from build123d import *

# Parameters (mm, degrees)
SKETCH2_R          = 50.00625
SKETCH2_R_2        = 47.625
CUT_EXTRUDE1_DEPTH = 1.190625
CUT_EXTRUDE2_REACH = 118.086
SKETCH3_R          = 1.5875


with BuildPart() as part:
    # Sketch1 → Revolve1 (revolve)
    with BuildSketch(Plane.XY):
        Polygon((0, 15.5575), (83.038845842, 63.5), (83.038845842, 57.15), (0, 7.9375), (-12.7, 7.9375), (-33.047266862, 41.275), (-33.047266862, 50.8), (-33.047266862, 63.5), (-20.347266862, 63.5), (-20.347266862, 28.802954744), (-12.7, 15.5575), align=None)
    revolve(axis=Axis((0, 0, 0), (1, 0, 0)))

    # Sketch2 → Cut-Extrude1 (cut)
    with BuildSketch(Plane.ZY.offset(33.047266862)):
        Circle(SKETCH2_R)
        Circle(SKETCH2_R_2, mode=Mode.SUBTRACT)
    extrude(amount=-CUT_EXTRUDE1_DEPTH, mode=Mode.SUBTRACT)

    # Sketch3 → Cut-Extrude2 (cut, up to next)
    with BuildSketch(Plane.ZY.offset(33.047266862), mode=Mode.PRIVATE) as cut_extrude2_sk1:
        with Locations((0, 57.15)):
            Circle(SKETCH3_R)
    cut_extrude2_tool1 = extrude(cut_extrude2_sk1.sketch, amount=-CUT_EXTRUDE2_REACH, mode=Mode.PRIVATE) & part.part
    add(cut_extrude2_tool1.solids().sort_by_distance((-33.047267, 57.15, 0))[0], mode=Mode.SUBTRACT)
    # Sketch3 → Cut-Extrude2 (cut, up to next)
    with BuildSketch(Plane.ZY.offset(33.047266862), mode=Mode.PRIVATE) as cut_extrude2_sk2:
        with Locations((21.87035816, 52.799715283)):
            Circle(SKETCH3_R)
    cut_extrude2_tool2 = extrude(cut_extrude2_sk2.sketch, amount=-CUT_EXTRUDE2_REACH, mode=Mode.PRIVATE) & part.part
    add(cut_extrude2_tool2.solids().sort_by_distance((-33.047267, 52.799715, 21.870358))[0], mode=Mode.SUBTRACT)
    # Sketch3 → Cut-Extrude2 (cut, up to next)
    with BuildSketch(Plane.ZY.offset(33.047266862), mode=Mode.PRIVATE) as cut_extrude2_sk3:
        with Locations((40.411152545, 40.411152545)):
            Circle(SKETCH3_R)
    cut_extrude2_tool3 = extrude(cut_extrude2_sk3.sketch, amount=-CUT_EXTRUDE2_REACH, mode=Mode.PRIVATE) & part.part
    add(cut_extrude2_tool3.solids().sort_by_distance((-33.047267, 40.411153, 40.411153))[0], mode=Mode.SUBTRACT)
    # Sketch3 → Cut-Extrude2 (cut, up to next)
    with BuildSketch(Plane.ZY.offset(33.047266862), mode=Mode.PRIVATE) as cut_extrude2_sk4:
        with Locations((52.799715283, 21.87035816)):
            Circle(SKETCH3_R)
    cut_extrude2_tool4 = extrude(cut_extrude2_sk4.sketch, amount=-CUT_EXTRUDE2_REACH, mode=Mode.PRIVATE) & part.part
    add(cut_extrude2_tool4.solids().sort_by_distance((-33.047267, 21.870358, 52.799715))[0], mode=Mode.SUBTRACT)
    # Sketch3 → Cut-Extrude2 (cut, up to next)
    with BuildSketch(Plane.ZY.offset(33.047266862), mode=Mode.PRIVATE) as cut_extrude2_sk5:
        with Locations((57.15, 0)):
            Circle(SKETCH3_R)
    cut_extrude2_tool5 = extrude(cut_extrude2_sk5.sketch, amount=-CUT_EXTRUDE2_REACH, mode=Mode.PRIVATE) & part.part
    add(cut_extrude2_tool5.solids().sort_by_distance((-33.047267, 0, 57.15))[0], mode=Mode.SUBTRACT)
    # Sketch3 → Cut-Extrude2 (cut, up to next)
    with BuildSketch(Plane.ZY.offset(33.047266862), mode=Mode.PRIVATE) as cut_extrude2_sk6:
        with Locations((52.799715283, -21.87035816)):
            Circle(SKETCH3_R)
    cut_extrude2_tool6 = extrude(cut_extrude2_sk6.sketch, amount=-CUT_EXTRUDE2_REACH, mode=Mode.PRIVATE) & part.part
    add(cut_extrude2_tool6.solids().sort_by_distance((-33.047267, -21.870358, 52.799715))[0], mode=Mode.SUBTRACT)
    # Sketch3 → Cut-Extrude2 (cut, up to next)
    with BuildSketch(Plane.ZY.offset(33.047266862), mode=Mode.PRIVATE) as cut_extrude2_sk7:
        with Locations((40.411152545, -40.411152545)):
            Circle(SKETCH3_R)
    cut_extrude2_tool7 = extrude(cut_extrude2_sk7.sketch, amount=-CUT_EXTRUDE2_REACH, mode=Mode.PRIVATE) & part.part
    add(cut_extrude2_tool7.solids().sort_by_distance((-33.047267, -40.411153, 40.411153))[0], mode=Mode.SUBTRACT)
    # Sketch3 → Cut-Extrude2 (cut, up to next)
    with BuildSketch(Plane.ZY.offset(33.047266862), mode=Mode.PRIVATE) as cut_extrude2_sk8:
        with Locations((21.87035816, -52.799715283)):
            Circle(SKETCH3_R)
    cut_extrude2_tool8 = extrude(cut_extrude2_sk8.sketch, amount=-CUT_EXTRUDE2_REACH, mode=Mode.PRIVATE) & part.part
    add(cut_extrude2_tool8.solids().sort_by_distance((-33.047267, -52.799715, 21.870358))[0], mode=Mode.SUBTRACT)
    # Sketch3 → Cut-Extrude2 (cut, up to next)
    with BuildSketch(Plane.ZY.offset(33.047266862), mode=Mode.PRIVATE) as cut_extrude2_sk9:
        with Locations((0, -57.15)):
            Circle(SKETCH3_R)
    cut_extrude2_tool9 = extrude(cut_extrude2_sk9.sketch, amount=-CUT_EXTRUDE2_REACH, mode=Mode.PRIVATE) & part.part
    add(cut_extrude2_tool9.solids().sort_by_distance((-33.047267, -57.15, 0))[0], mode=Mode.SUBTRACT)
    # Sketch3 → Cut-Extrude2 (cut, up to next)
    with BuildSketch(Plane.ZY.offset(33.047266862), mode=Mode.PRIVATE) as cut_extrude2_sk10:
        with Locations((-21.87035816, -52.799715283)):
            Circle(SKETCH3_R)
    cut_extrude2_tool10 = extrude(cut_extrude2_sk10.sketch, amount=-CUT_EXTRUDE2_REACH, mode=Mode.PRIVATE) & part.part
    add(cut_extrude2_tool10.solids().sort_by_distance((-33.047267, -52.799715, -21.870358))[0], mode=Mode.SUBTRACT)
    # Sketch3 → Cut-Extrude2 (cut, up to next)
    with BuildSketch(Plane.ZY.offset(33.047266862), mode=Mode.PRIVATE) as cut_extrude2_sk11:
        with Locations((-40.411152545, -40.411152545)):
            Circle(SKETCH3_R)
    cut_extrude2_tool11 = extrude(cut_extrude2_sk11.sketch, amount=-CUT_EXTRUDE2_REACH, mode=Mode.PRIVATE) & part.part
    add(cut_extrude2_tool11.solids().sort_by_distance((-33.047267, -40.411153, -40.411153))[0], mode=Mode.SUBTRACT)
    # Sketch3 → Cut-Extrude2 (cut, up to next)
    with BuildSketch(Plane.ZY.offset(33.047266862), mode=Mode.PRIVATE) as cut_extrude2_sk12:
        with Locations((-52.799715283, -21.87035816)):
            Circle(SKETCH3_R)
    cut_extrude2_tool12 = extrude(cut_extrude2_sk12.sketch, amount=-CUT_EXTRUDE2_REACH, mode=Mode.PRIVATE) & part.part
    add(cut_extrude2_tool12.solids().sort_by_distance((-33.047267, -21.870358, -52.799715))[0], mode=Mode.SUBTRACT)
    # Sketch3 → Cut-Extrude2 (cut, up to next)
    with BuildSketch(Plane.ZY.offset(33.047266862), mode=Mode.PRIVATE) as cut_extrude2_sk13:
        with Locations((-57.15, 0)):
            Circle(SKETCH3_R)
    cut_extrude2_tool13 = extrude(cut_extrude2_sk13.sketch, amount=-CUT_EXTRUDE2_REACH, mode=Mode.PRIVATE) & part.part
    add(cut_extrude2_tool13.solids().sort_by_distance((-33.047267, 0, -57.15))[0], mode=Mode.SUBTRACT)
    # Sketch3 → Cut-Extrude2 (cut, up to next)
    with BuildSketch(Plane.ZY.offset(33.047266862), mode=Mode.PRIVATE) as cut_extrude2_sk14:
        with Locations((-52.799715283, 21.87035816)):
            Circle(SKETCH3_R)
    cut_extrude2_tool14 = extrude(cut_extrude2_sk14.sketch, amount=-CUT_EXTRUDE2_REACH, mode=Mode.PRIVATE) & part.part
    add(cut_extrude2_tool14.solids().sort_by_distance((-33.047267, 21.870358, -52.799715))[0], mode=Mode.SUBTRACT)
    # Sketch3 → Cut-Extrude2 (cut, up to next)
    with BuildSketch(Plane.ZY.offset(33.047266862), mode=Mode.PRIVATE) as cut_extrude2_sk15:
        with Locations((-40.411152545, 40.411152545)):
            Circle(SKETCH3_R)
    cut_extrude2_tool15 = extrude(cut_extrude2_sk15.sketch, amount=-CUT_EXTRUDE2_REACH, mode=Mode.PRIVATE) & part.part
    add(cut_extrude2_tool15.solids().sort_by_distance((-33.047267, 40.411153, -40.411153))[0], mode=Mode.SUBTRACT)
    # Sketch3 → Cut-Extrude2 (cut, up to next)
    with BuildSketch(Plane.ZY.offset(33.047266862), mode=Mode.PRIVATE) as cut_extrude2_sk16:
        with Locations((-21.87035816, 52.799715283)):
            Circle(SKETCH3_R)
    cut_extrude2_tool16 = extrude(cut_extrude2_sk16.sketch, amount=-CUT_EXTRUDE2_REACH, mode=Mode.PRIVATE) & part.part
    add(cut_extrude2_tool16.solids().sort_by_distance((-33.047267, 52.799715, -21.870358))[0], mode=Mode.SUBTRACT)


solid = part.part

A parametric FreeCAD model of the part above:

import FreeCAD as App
import Part
import Sketcher

V = App.Vector
Q = App.Units.Quantity

doc = App.newDocument("Part")
params = doc.addObject("Spreadsheet::Sheet", "Params")
for row, (alias, value) in enumerate([
    ("sketch1_width", "0.5 in"),
    ("sketch1_height", "0.25 in"),
    ("sketch1_height2", "0.875 in"),
    ("sketch1_length", "3.775 in"),
    ("revolution_angle", "360 deg"),
    ("sketch2_diameter", "3.75 in"),
    ("sketch2_diameter2", "3.9375 in"),
    ("pocket1_length", "0.046875 in"),
    ("sketch3_diameter", "0.125 in"),
    ("sketch4_diameter", "0.125 in"),
    ("sketch5_diameter", "0.125 in"),
    ("sketch6_diameter", "0.125 in"),
    ("sketch7_diameter", "0.125 in"),
    ("sketch8_diameter", "0.125 in"),
    ("sketch9_diameter", "0.125 in"),
    ("sketch10_diameter", "0.125 in"),
    ("sketch11_diameter", "0.125 in"),
    ("sketch12_diameter", "0.125 in"),
    ("sketch13_diameter", "0.125 in"),
    ("sketch14_diameter", "0.125 in"),
    ("sketch15_diameter", "0.125 in"),
    ("sketch16_diameter", "0.125 in"),
    ("sketch17_diameter", "0.125 in"),
    ("sketch18_diameter", "0.125 in"),
], start=1):
    params.set(f"A{row}", alias)
    params.set(f"B{row}", "=" + value)
    params.setAlias(f"B{row}", alias)

body = doc.addObject("PartDesign::Body", "Body")

sketch1 = body.newObject("Sketcher::SketchObject", "Sketch")
sketch1.AttachmentSupport = (doc.getObject("XY_Plane"), [""])
sketch1.MapMode = "FlatFace"
sketch1.addGeometry(Part.LineSegment(V(83, 64, 0), V(0, 16, 0)), False)
sketch1.addGeometry(Part.LineSegment(V(0, 16, 0), V(-13, 16, 0)), False)
sketch1.addGeometry(Part.LineSegment(V(-13, 16, 0), V(-20, 29, 0)), False)
sketch1.addGeometry(Part.LineSegment(V(-20, 29, 0), V(-20, 64, 0)), False)
sketch1.addGeometry(Part.LineSegment(V(-20, 64, 0), V(-33, 64, 0)), False)
sketch1.addGeometry(Part.LineSegment(V(-33, 64, 0), V(-33, 41, 0)), False)
sketch1.addGeometry(Part.LineSegment(V(-33, 41, 0), V(-13, 8, 0)), False)
sketch1.addGeometry(Part.LineSegment(V(-13, 8, 0), V(0, 8, 0)), False)
sketch1.addGeometry(Part.LineSegment(V(0, 8, 0), V(83, 57, 0)), False)
sketch1.addGeometry(Part.LineSegment(V(83, 57, 0), V(83, 64, 0)), False)
sketch1.addConstraint(Sketcher.Constraint("Coincident", 0, 2, 1, 1))
sketch1.addConstraint(Sketcher.Constraint("Coincident", 1, 2, 2, 1))
sketch1.addConstraint(Sketcher.Constraint("Coincident", 2, 2, 3, 1))
sketch1.addConstraint(Sketcher.Constraint("Coincident", 3, 2, 4, 1))
sketch1.addConstraint(Sketcher.Constraint("Coincident", 4, 2, 5, 1))
sketch1.addConstraint(Sketcher.Constraint("Coincident", 5, 2, 6, 1))
sketch1.addConstraint(Sketcher.Constraint("Coincident", 6, 2, 7, 1))
sketch1.addConstraint(Sketcher.Constraint("Coincident", 7, 2, 8, 1))
sketch1.addConstraint(Sketcher.Constraint("Coincident", 8, 2, 9, 1))
sketch1.addConstraint(Sketcher.Constraint("Coincident", 9, 2, 0, 1))
sketch1.addConstraint(Sketcher.Constraint("Horizontal", 1))
sketch1.addConstraint(Sketcher.Constraint("Vertical", 3))
sketch1.addConstraint(Sketcher.Constraint("Horizontal", 4))
sketch1.addConstraint(Sketcher.Constraint("Vertical", 5))
sketch1.addConstraint(Sketcher.Constraint("Horizontal", 7))
sketch1.addConstraint(Sketcher.Constraint("Vertical", 9))
sketch1.addConstraint(Sketcher.Constraint("PointOnObject", 0, 2, -2))
sketch1.addConstraint(Sketcher.Constraint("PointOnObject", 7, 2, -2))
sketch1.addConstraint(Sketcher.Constraint("Perpendicular", 0, 2))
sketch1.addConstraint(Sketcher.Constraint("Horizontal", 4, 2, 9, 2))
sketch1.addConstraint(Sketcher.Constraint("Vertical", 1, 2, 6, 2))
sketch1.addConstraint(Sketcher.Constraint("Equal", 1, 4))
sketch1.addConstraint(Sketcher.Constraint("DistanceX", 1, 2, 1, 1, Q("0.5 in")))
sketch1.addConstraint(Sketcher.Constraint("Angle", 0, Q("-150 deg")))
sketch1.addConstraint(Sketcher.Constraint("DistanceY", 9, 1, 9, 2, Q("0.25 in")))
sketch1.addConstraint(Sketcher.Constraint("DistanceY", -1, 1, 3, 2, Q("2.5 in")))
sketch1.addConstraint(Sketcher.Constraint("DistanceY", 6, 2, 1, 2, Q("0.3 in")))
sketch1.addConstraint(Sketcher.Constraint("DistanceY", 5, 2, 5, 1, Q("0.875 in")))
sketch1.addConstraint(Sketcher.Constraint("Distance", 0, Q("3.775 in")))
sketch1.addConstraint(Sketcher.Constraint("Distance", 6, Q("39.056372 mm")))
sketch1.setExpression("Constraints[22]", "Params.sketch1_width")
sketch1.setExpression("Constraints[24]", "Params.sketch1_height")
sketch1.setExpression("Constraints[27]", "Params.sketch1_height2")
sketch1.setExpression("Constraints[28]", "Params.sketch1_length")
revolution = body.newObject("PartDesign::Revolution", "Revolution")
revolution.Profile = sketch1
revolution.ReferenceAxis = (sketch1, ["H_Axis"])
revolution.setExpression("Angle", "Params.revolution_angle")

sketch2 = body.newObject("Sketcher::SketchObject", "Sketch001")
sketch2.AttachmentSupport = (doc.getObject("YZ_Plane"), [""])
sketch2.MapMode = "FlatFace"
sketch2.AttachmentOffset = App.Placement(V(0, 0, -33.047267), App.Rotation())
sketch2.addGeometry(Part.Circle(V(0, 0, 0), V(0, 0, 1), 50), False)
sketch2.addGeometry(Part.Circle(V(0, 0, 0), V(0, 0, 1), 48), False)
sketch2.addConstraint(Sketcher.Constraint("Coincident", 0, 3, -1, 1))
sketch2.addConstraint(Sketcher.Constraint("Coincident", 1, 3, -1, 1))
sketch2.addConstraint(Sketcher.Constraint("Diameter", 1, Q("3.75 in")))
sketch2.addConstraint(Sketcher.Constraint("Diameter", 0, Q("3.9375 in")))
sketch2.setExpression("Constraints[2]", "Params.sketch2_diameter")
sketch2.setExpression("Constraints[3]", "Params.sketch2_diameter2")
pocket1 = body.newObject("PartDesign::Pocket", "Pocket")
pocket1.Profile = sketch2
pocket1.setExpression("Length", "Params.pocket1_length")
pocket1.Reversed = True

sketch3 = body.newObject("Sketcher::SketchObject", "Sketch002")
sketch3.AttachmentSupport = (doc.getObject("YZ_Plane"), [""])
sketch3.MapMode = "FlatFace"
sketch3.AttachmentOffset = App.Placement(V(0, 0, -33.047267), App.Rotation())
sketch3.addGeometry(Part.Circle(V(57.1, 0, 0), V(0, 0, 1), 1.6), False)
sketch3.addConstraint(Sketcher.Constraint("PointOnObject", 0, 3, -1))
sketch3.addConstraint(Sketcher.Constraint("Diameter", 0, Q("0.125 in")))
sketch3.addConstraint(Sketcher.Constraint("DistanceX", -1, 1, 0, 3, Q("2.25 in")))
sketch3.setExpression("Constraints[1]", "Params.sketch3_diameter")
pocket2 = body.newObject("PartDesign::Pocket", "Pocket001")
pocket2.Profile = sketch3
pocket2.Type = "UpToFirst"
pocket2.Reversed = True

sketch4 = body.newObject("Sketcher::SketchObject", "Sketch003")
sketch4.AttachmentSupport = (doc.getObject("YZ_Plane"), [""])
sketch4.MapMode = "FlatFace"
sketch4.AttachmentOffset = App.Placement(V(0, 0, -33.047267), App.Rotation())
sketch4.addGeometry(Part.Circle(V(52.8, 21.9, 0), V(0, 0, 1), 1.6), False)
sketch4.addConstraint(Sketcher.Constraint("Diameter", 0, Q("0.125 in")))
sketch4.addConstraint(Sketcher.Constraint("DistanceY", -1, 1, 0, 3, Q("21.870358 mm")))
sketch4.addConstraint(Sketcher.Constraint("DistanceX", -1, 1, 0, 3, Q("52.799715 mm")))
sketch4.setExpression("Constraints[0]", "Params.sketch4_diameter")
pocket3 = body.newObject("PartDesign::Pocket", "Pocket002")
pocket3.Profile = sketch4
pocket3.Type = "UpToFirst"
pocket3.Reversed = True

sketch5 = body.newObject("Sketcher::SketchObject", "Sketch004")
sketch5.AttachmentSupport = (doc.getObject("YZ_Plane"), [""])
sketch5.MapMode = "FlatFace"
sketch5.AttachmentOffset = App.Placement(V(0, 0, -33.047267), App.Rotation())
sketch5.addGeometry(Part.Circle(V(40.4, 40.4, 0), V(0, 0, 1), 1.6), False)
sketch5.addConstraint(Sketcher.Constraint("Diameter", 0, Q("0.125 in")))
sketch5.addConstraint(Sketcher.Constraint("DistanceX", -1, 1, 0, 3, Q("40.411153 mm")))
sketch5.addConstraint(Sketcher.Constraint("DistanceY", -1, 1, 0, 3, Q("40.411153 mm")))
sketch5.setExpression("Constraints[0]", "Params.sketch5_diameter")
pocket4 = body.newObject("PartDesign::Pocket", "Pocket003")
pocket4.Profile = sketch5
pocket4.Type = "UpToFirst"
pocket4.Reversed = True

sketch6 = body.newObject("Sketcher::SketchObject", "Sketch005")
sketch6.AttachmentSupport = (doc.getObject("YZ_Plane"), [""])
sketch6.MapMode = "FlatFace"
sketch6.AttachmentOffset = App.Placement(V(0, 0, -33.047267), App.Rotation())
sketch6.addGeometry(Part.Circle(V(21.9, 52.8, 0), V(0, 0, 1), 1.6), False)
sketch6.addConstraint(Sketcher.Constraint("Diameter", 0, Q("0.125 in")))
sketch6.addConstraint(Sketcher.Constraint("DistanceX", -1, 1, 0, 3, Q("21.870358 mm")))
sketch6.addConstraint(Sketcher.Constraint("DistanceY", -1, 1, 0, 3, Q("52.799715 mm")))
sketch6.setExpression("Constraints[0]", "Params.sketch6_diameter")
pocket5 = body.newObject("PartDesign::Pocket", "Pocket004")
pocket5.Profile = sketch6
pocket5.Type = "UpToFirst"
pocket5.Reversed = True

sketch7 = body.newObject("Sketcher::SketchObject", "Sketch006")
sketch7.AttachmentSupport = (doc.getObject("YZ_Plane"), [""])
sketch7.MapMode = "FlatFace"
sketch7.AttachmentOffset = App.Placement(V(0, 0, -33.047267), App.Rotation())
sketch7.addGeometry(Part.Circle(V(0, 57.1, 0), V(0, 0, 1), 1.6), False)
sketch7.addConstraint(Sketcher.Constraint("PointOnObject", 0, 3, -2))
sketch7.addConstraint(Sketcher.Constraint("Diameter", 0, Q("0.125 in")))
sketch7.addConstraint(Sketcher.Constraint("DistanceY", -1, 1, 0, 3, Q("2.25 in")))
sketch7.setExpression("Constraints[1]", "Params.sketch7_diameter")
pocket6 = body.newObject("PartDesign::Pocket", "Pocket005")
pocket6.Profile = sketch7
pocket6.Type = "UpToFirst"
pocket6.Reversed = True

sketch8 = body.newObject("Sketcher::SketchObject", "Sketch007")
sketch8.AttachmentSupport = (doc.getObject("YZ_Plane"), [""])
sketch8.MapMode = "FlatFace"
sketch8.AttachmentOffset = App.Placement(V(0, 0, -33.047267), App.Rotation())
sketch8.addGeometry(Part.Circle(V(-21.9, 52.8, 0), V(0, 0, 1), 1.6), False)
sketch8.addConstraint(Sketcher.Constraint("Diameter", 0, Q("0.125 in")))
sketch8.addConstraint(Sketcher.Constraint("DistanceX", 0, 3, -1, 1, Q("21.870358 mm")))
sketch8.addConstraint(Sketcher.Constraint("DistanceY", -1, 1, 0, 3, Q("52.799715 mm")))
sketch8.setExpression("Constraints[0]", "Params.sketch8_diameter")
pocket7 = body.newObject("PartDesign::Pocket", "Pocket006")
pocket7.Profile = sketch8
pocket7.Type = "UpToFirst"
pocket7.Reversed = True

sketch9 = body.newObject("Sketcher::SketchObject", "Sketch008")
sketch9.AttachmentSupport = (doc.getObject("YZ_Plane"), [""])
sketch9.MapMode = "FlatFace"
sketch9.AttachmentOffset = App.Placement(V(0, 0, -33.047267), App.Rotation())
sketch9.addGeometry(Part.Circle(V(-40.4, 40.4, 0), V(0, 0, 1), 1.6), False)
sketch9.addConstraint(Sketcher.Constraint("Diameter", 0, Q("0.125 in")))
sketch9.addConstraint(Sketcher.Constraint("DistanceX", 0, 3, -1, 1, Q("40.411153 mm")))
sketch9.addConstraint(Sketcher.Constraint("DistanceY", -1, 1, 0, 3, Q("40.411153 mm")))
sketch9.setExpression("Constraints[0]", "Params.sketch9_diameter")
pocket8 = body.newObject("PartDesign::Pocket", "Pocket007")
pocket8.Profile = sketch9
pocket8.Type = "UpToFirst"
pocket8.Reversed = True

sketch10 = body.newObject("Sketcher::SketchObject", "Sketch009")
sketch10.AttachmentSupport = (doc.getObject("YZ_Plane"), [""])
sketch10.MapMode = "FlatFace"
sketch10.AttachmentOffset = App.Placement(V(0, 0, -33.047267), App.Rotation())
sketch10.addGeometry(Part.Circle(V(-52.8, 21.9, 0), V(0, 0, 1), 1.6), False)
sketch10.addConstraint(Sketcher.Constraint("Diameter", 0, Q("0.125 in")))
sketch10.addConstraint(Sketcher.Constraint("DistanceY", -1, 1, 0, 3, Q("21.870358 mm")))
sketch10.addConstraint(Sketcher.Constraint("DistanceX", 0, 3, -1, 1, Q("52.799715 mm")))
sketch10.setExpression("Constraints[0]", "Params.sketch10_diameter")
pocket9 = body.newObject("PartDesign::Pocket", "Pocket008")
pocket9.Profile = sketch10
pocket9.Type = "UpToFirst"
pocket9.Reversed = True

sketch11 = body.newObject("Sketcher::SketchObject", "Sketch010")
sketch11.AttachmentSupport = (doc.getObject("YZ_Plane"), [""])
sketch11.MapMode = "FlatFace"
sketch11.AttachmentOffset = App.Placement(V(0, 0, -33.047267), App.Rotation())
sketch11.addGeometry(Part.Circle(V(-57.1, 0, 0), V(0, 0, 1), 1.6), False)
sketch11.addConstraint(Sketcher.Constraint("PointOnObject", 0, 3, -1))
sketch11.addConstraint(Sketcher.Constraint("Diameter", 0, Q("0.125 in")))
sketch11.addConstraint(Sketcher.Constraint("DistanceX", 0, 3, -1, 1, Q("2.25 in")))
sketch11.setExpression("Constraints[1]", "Params.sketch11_diameter")
pocket10 = body.newObject("PartDesign::Pocket", "Pocket009")
pocket10.Profile = sketch11
pocket10.Type = "UpToFirst"
pocket10.Reversed = True

sketch12 = body.newObject("Sketcher::SketchObject", "Sketch011")
sketch12.AttachmentSupport = (doc.getObject("YZ_Plane"), [""])
sketch12.MapMode = "FlatFace"
sketch12.AttachmentOffset = App.Placement(V(0, 0, -33.047267), App.Rotation())
sketch12.addGeometry(Part.Circle(V(-52.8, -21.9, 0), V(0, 0, 1), 1.6), False)
sketch12.addConstraint(Sketcher.Constraint("Diameter", 0, Q("0.125 in")))
sketch12.addConstraint(Sketcher.Constraint("DistanceY", 0, 3, -1, 1, Q("21.870358 mm")))
sketch12.addConstraint(Sketcher.Constraint("DistanceX", 0, 3, -1, 1, Q("52.799715 mm")))
sketch12.setExpression("Constraints[0]", "Params.sketch12_diameter")
pocket11 = body.newObject("PartDesign::Pocket", "Pocket010")
pocket11.Profile = sketch12
pocket11.Type = "UpToFirst"
pocket11.Reversed = True

sketch13 = body.newObject("Sketcher::SketchObject", "Sketch012")
sketch13.AttachmentSupport = (doc.getObject("YZ_Plane"), [""])
sketch13.MapMode = "FlatFace"
sketch13.AttachmentOffset = App.Placement(V(0, 0, -33.047267), App.Rotation())
sketch13.addGeometry(Part.Circle(V(-40.4, -40.4, 0), V(0, 0, 1), 1.6), False)
sketch13.addConstraint(Sketcher.Constraint("Diameter", 0, Q("0.125 in")))
sketch13.addConstraint(Sketcher.Constraint("DistanceX", 0, 3, -1, 1, Q("40.411153 mm")))
sketch13.addConstraint(Sketcher.Constraint("DistanceY", 0, 3, -1, 1, Q("40.411153 mm")))
sketch13.setExpression("Constraints[0]", "Params.sketch13_diameter")
pocket12 = body.newObject("PartDesign::Pocket", "Pocket011")
pocket12.Profile = sketch13
pocket12.Type = "UpToFirst"
pocket12.Reversed = True

sketch14 = body.newObject("Sketcher::SketchObject", "Sketch013")
sketch14.AttachmentSupport = (doc.getObject("YZ_Plane"), [""])
sketch14.MapMode = "FlatFace"
sketch14.AttachmentOffset = App.Placement(V(0, 0, -33.047267), App.Rotation())
sketch14.addGeometry(Part.Circle(V(-21.9, -52.8, 0), V(0, 0, 1), 1.6), False)
sketch14.addConstraint(Sketcher.Constraint("Diameter", 0, Q("0.125 in")))
sketch14.addConstraint(Sketcher.Constraint("DistanceX", 0, 3, -1, 1, Q("21.870358 mm")))
sketch14.addConstraint(Sketcher.Constraint("DistanceY", 0, 3, -1, 1, Q("52.799715 mm")))
sketch14.setExpression("Constraints[0]", "Params.sketch14_diameter")
pocket13 = body.newObject("PartDesign::Pocket", "Pocket012")
pocket13.Profile = sketch14
pocket13.Type = "UpToFirst"
pocket13.Reversed = True

sketch15 = body.newObject("Sketcher::SketchObject", "Sketch014")
sketch15.AttachmentSupport = (doc.getObject("YZ_Plane"), [""])
sketch15.MapMode = "FlatFace"
sketch15.AttachmentOffset = App.Placement(V(0, 0, -33.047267), App.Rotation())
sketch15.addGeometry(Part.Circle(V(0, -57.1, 0), V(0, 0, 1), 1.6), False)
sketch15.addConstraint(Sketcher.Constraint("PointOnObject", 0, 3, -2))
sketch15.addConstraint(Sketcher.Constraint("Diameter", 0, Q("0.125 in")))
sketch15.addConstraint(Sketcher.Constraint("DistanceY", 0, 3, -1, 1, Q("2.25 in")))
sketch15.setExpression("Constraints[1]", "Params.sketch15_diameter")
pocket14 = body.newObject("PartDesign::Pocket", "Pocket013")
pocket14.Profile = sketch15
pocket14.Type = "UpToFirst"
pocket14.Reversed = True

sketch16 = body.newObject("Sketcher::SketchObject", "Sketch015")
sketch16.AttachmentSupport = (doc.getObject("YZ_Plane"), [""])
sketch16.MapMode = "FlatFace"
sketch16.AttachmentOffset = App.Placement(V(0, 0, -33.047267), App.Rotation())
sketch16.addGeometry(Part.Circle(V(21.9, -52.8, 0), V(0, 0, 1), 1.6), False)
sketch16.addConstraint(Sketcher.Constraint("Diameter", 0, Q("0.125 in")))
sketch16.addConstraint(Sketcher.Constraint("DistanceX", -1, 1, 0, 3, Q("21.870358 mm")))
sketch16.addConstraint(Sketcher.Constraint("DistanceY", 0, 3, -1, 1, Q("52.799715 mm")))
sketch16.setExpression("Constraints[0]", "Params.sketch16_diameter")
pocket15 = body.newObject("PartDesign::Pocket", "Pocket014")
pocket15.Profile = sketch16
pocket15.Type = "UpToFirst"
pocket15.Reversed = True

sketch17 = body.newObject("Sketcher::SketchObject", "Sketch016")
sketch17.AttachmentSupport = (doc.getObject("YZ_Plane"), [""])
sketch17.MapMode = "FlatFace"
sketch17.AttachmentOffset = App.Placement(V(0, 0, -33.047267), App.Rotation())
sketch17.addGeometry(Part.Circle(V(40.4, -40.4, 0), V(0, 0, 1), 1.6), False)
sketch17.addConstraint(Sketcher.Constraint("Diameter", 0, Q("0.125 in")))
sketch17.addConstraint(Sketcher.Constraint("DistanceX", -1, 1, 0, 3, Q("40.411153 mm")))
sketch17.addConstraint(Sketcher.Constraint("DistanceY", 0, 3, -1, 1, Q("40.411153 mm")))
sketch17.setExpression("Constraints[0]", "Params.sketch17_diameter")
pocket16 = body.newObject("PartDesign::Pocket", "Pocket015")
pocket16.Profile = sketch17
pocket16.Type = "UpToFirst"
pocket16.Reversed = True

sketch18 = body.newObject("Sketcher::SketchObject", "Sketch017")
sketch18.AttachmentSupport = (doc.getObject("YZ_Plane"), [""])
sketch18.MapMode = "FlatFace"
sketch18.AttachmentOffset = App.Placement(V(0, 0, -33.047267), App.Rotation())
sketch18.addGeometry(Part.Circle(V(52.8, -21.9, 0), V(0, 0, 1), 1.6), False)
sketch18.addConstraint(Sketcher.Constraint("Diameter", 0, Q("0.125 in")))
sketch18.addConstraint(Sketcher.Constraint("DistanceY", 0, 3, -1, 1, Q("21.870358 mm")))
sketch18.addConstraint(Sketcher.Constraint("DistanceX", -1, 1, 0, 3, Q("52.799715 mm")))
sketch18.setExpression("Constraints[0]", "Params.sketch18_diameter")
pocket17 = body.newObject("PartDesign::Pocket", "Pocket016")
pocket17.Profile = sketch18
pocket17.Type = "UpToFirst"
pocket17.Reversed = True

doc.recompute()
